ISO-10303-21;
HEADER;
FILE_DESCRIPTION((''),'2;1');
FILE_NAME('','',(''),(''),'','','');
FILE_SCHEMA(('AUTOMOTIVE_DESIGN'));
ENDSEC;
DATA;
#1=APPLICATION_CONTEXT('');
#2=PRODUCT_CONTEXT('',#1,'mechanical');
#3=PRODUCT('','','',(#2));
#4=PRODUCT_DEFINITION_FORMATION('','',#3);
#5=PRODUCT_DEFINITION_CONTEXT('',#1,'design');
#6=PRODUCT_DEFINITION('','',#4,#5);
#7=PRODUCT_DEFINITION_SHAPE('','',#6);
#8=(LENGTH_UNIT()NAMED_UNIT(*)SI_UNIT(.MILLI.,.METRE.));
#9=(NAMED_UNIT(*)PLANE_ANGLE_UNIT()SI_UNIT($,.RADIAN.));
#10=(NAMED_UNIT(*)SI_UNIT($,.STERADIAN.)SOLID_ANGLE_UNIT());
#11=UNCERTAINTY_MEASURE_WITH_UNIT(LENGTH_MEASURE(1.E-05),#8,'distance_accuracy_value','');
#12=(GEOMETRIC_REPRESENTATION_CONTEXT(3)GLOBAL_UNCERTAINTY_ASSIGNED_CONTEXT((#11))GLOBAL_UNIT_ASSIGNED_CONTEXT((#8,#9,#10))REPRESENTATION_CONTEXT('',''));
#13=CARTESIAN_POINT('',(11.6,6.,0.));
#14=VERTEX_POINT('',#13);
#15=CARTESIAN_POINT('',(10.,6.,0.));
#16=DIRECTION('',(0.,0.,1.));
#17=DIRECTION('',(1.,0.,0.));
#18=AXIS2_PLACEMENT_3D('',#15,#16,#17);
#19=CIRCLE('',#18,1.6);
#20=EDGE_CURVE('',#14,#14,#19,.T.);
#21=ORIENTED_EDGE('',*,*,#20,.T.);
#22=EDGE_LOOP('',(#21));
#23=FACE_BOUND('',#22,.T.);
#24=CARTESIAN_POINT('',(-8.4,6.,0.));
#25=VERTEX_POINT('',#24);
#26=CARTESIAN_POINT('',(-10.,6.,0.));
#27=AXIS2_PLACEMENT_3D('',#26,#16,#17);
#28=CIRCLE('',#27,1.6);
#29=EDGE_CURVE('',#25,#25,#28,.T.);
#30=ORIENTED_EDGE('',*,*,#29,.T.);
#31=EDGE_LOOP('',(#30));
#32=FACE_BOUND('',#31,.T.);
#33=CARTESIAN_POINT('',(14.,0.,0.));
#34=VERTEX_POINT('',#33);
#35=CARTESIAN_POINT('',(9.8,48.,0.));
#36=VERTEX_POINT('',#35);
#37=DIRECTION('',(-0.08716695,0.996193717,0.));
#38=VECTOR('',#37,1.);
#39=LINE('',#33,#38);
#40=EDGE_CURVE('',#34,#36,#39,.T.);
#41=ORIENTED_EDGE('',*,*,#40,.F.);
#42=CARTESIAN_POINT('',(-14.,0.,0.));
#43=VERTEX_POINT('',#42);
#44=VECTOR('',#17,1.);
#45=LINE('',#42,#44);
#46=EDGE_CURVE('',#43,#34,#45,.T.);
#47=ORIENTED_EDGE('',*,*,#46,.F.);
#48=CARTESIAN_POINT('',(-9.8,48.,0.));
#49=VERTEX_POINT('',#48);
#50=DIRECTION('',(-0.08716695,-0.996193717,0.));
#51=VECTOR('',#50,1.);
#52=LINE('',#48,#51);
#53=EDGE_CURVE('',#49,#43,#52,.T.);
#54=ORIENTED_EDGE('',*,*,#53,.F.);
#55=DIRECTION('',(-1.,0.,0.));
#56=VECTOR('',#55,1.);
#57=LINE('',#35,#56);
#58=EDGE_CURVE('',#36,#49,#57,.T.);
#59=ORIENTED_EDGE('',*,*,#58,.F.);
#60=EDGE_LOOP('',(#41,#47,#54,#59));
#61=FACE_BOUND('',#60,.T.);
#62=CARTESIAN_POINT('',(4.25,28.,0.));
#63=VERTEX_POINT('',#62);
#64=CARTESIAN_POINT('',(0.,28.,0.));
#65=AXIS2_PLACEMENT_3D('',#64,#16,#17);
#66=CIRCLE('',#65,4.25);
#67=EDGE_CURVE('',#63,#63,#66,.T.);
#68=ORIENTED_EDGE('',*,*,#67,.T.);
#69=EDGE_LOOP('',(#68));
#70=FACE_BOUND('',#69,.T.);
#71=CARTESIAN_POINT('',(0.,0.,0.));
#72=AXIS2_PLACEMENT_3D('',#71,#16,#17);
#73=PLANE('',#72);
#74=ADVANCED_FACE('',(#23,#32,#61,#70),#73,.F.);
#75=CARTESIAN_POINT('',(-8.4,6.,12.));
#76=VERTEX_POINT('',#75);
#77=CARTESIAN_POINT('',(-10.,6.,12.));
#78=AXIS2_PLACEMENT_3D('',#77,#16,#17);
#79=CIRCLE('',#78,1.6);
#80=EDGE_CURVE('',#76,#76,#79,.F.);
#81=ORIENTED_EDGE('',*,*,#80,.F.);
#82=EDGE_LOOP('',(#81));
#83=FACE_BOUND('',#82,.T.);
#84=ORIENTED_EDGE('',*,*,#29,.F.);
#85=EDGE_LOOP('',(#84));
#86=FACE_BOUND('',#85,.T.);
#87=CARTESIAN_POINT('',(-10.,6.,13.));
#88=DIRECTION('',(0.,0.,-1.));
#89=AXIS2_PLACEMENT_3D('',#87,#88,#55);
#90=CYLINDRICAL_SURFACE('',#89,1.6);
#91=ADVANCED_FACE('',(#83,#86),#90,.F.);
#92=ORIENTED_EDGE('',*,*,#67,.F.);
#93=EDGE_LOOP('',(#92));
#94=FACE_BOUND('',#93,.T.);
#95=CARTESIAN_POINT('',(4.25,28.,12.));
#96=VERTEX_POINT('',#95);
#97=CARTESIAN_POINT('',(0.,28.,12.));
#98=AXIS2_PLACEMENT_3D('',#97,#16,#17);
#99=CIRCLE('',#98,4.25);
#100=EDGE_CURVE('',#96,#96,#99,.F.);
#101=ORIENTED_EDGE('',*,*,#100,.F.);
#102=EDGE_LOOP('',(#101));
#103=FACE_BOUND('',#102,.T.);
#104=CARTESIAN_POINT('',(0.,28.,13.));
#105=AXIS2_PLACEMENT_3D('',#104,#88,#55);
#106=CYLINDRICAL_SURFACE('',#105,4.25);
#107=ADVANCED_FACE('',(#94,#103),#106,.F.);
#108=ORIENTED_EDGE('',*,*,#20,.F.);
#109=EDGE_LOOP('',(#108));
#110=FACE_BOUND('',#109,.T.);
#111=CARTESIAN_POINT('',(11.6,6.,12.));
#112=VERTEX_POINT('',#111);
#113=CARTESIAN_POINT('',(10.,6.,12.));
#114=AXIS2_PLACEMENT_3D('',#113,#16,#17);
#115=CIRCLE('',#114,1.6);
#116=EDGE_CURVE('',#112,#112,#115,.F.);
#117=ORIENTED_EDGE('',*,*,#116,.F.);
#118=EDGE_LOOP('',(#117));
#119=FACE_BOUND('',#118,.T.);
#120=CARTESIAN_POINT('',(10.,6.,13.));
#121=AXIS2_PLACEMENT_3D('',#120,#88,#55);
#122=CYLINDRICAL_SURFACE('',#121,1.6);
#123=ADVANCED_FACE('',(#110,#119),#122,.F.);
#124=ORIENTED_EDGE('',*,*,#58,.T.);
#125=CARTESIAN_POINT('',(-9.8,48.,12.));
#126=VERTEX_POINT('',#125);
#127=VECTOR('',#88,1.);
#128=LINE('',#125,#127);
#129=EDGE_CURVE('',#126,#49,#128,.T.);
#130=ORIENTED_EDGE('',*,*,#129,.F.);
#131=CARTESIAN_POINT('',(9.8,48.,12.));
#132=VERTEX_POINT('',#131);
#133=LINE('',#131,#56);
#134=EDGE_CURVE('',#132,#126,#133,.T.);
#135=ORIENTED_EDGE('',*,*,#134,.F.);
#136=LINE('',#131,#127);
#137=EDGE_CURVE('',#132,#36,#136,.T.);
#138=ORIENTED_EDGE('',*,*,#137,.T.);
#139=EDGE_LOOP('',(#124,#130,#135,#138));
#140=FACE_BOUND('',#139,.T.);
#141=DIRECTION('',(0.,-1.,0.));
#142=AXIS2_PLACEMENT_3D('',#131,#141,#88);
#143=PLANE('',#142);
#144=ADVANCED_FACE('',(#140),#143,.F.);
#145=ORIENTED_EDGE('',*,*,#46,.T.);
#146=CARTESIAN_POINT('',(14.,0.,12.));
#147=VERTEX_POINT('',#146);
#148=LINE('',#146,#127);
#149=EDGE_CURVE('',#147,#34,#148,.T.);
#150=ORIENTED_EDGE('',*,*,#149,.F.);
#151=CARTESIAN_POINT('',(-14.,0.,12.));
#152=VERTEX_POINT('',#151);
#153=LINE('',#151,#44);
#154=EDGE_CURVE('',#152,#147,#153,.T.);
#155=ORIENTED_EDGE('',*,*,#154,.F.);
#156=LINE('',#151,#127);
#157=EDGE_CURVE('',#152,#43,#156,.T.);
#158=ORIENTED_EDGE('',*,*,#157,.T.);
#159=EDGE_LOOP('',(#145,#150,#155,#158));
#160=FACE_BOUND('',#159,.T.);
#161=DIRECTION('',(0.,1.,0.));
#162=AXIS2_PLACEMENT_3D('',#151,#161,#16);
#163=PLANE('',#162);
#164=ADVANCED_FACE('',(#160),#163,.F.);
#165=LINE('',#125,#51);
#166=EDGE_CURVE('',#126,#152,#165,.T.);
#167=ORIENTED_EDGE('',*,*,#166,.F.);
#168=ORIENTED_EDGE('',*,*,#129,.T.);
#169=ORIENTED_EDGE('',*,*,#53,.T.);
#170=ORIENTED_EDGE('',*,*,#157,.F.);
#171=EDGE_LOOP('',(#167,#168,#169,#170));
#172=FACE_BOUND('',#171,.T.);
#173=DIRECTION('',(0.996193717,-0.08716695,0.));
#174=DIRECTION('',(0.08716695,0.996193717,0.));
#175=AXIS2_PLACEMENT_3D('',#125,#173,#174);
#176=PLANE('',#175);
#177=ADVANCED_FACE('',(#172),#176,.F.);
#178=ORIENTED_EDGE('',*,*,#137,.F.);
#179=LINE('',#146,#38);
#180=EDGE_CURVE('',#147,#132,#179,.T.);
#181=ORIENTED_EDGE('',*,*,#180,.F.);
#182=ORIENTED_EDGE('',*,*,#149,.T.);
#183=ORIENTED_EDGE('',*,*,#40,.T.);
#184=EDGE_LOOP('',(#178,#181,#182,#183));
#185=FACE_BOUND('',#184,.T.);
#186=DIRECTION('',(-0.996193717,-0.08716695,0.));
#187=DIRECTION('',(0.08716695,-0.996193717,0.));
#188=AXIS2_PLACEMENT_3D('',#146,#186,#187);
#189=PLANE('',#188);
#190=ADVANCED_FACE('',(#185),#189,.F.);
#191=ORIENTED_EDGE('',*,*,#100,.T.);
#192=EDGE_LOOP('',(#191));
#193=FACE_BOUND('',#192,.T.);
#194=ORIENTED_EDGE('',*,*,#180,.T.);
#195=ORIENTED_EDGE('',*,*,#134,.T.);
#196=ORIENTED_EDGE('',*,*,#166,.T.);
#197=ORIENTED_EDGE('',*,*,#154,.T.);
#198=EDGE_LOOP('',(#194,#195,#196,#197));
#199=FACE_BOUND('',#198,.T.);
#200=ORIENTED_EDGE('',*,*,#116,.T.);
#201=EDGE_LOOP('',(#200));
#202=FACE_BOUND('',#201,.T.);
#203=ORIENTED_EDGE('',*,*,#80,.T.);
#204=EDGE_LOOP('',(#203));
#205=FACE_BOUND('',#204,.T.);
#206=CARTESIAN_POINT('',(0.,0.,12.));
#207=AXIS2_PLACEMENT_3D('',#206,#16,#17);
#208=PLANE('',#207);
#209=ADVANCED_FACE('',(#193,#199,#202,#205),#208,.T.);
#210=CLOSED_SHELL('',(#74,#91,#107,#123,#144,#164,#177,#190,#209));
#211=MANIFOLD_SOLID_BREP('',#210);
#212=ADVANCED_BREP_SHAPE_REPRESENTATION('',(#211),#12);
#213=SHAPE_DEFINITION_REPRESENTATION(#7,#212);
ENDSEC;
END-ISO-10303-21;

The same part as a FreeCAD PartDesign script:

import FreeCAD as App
import Part
import Sketcher

V = App.Vector


def add_polygon(sketch, points):
    """Adds a closed chain of lines whose ends are joined by coincident constraints."""
    first, n = sketch.GeometryCount, len(points)
    for a, b in zip(points, points[1:] + points[:1]):
        sketch.addGeometry(Part.LineSegment(App.Vector(*a, 0), App.Vector(*b, 0)), False)
    for i in range(n):
        sketch.addConstraint(Sketcher.Constraint("Coincident", first + i, 2, first + (i + 1) % n, 1))

doc = App.newDocument("Part")
body = doc.addObject("PartDesign::Body", "Body")

# Sketch on XY plane
sketch1 = doc.addObject("Sketcher::SketchObject", "Sketch")
body.addObject(sketch1)
sketch1.AttachmentSupport = (doc.XY_Plane, [""])
sketch1.MapMode = "FlatFace"
add_polygon(sketch1, [(-14, 0), (14, 0), (9.8, 48), (-9.8, 48)])  # lines 0-3
sketch1.addConstraint(Sketcher.Constraint("Horizontal", 0))
sketch1.addConstraint(Sketcher.Constraint("Horizontal", 2))
sketch1.addConstraint(Sketcher.Constraint("Symmetric", 0, 2, 3, 2, -1, 1))
sketch1.addConstraint(Sketcher.Constraint("Equal", 1, 3))
sketch1.addConstraint(Sketcher.Constraint("DistanceX", 0, 1, 0, 2, 28.0))
sketch1.addConstraint(Sketcher.Constraint("DistanceX", 2, 2, 2, 1, 19.6))
sketch1.addConstraint(Sketcher.Constraint("DistanceY", -1, 1, 1, 2, 48.0))
pad1 = doc.addObject("PartDesign::Pad", "Pad")
body.addObject(pad1)
pad1.Profile = sketch1
pad1.Length = 12

# Sketch on XY plane
sketch2 = doc.addObject("Sketcher::SketchObject", "Sketch001")
body.addObject(sketch2)
sketch2.AttachmentSupport = (doc.XY_Plane, [""])
sketch2.MapMode = "FlatFace"
sketch2.addGeometry(Part.Circle(V(0, 28, 0), V(0, 0, 1), 4.25), False)
sketch2.addGeometry(Part.Circle(V(10, 6, 0), V(0, 0, 1), 1.6), False)
sketch2.addGeometry(Part.Circle(V(-10, 6, 0), V(0, 0, 1), 1.6), False)
sketch2.addConstraint(Sketcher.Constraint("Equal", 1, 2))
sketch2.addConstraint(Sketcher.Constraint("Symmetric", 1, 3, 2, 3, -2))
sketch2.addConstraint(Sketcher.Constraint("PointOnObject", 0, 3, -2))
sketch2.addConstraint(Sketcher.Constraint("Diameter", 0, 8.5))
sketch2.addConstraint(Sketcher.Constraint("Diameter", 1, 3.2))
sketch2.addConstraint(Sketcher.Constraint("DistanceY", -1, 1, 0, 3, 28.0))
sketch2.addConstraint(Sketcher.Constraint("DistanceX", -1, 1, 1, 3, 10.0))
sketch2.addConstraint(Sketcher.Constraint("DistanceY", -1, 1, 1, 3, 6.0))
pocket1 = doc.addObject("PartDesign::Pocket", "Pocket")
body.addObject(pocket1)
pocket1.Profile = sketch2
pocket1.Length = 13
pocket1.Reversed = True

doc.recompute()
